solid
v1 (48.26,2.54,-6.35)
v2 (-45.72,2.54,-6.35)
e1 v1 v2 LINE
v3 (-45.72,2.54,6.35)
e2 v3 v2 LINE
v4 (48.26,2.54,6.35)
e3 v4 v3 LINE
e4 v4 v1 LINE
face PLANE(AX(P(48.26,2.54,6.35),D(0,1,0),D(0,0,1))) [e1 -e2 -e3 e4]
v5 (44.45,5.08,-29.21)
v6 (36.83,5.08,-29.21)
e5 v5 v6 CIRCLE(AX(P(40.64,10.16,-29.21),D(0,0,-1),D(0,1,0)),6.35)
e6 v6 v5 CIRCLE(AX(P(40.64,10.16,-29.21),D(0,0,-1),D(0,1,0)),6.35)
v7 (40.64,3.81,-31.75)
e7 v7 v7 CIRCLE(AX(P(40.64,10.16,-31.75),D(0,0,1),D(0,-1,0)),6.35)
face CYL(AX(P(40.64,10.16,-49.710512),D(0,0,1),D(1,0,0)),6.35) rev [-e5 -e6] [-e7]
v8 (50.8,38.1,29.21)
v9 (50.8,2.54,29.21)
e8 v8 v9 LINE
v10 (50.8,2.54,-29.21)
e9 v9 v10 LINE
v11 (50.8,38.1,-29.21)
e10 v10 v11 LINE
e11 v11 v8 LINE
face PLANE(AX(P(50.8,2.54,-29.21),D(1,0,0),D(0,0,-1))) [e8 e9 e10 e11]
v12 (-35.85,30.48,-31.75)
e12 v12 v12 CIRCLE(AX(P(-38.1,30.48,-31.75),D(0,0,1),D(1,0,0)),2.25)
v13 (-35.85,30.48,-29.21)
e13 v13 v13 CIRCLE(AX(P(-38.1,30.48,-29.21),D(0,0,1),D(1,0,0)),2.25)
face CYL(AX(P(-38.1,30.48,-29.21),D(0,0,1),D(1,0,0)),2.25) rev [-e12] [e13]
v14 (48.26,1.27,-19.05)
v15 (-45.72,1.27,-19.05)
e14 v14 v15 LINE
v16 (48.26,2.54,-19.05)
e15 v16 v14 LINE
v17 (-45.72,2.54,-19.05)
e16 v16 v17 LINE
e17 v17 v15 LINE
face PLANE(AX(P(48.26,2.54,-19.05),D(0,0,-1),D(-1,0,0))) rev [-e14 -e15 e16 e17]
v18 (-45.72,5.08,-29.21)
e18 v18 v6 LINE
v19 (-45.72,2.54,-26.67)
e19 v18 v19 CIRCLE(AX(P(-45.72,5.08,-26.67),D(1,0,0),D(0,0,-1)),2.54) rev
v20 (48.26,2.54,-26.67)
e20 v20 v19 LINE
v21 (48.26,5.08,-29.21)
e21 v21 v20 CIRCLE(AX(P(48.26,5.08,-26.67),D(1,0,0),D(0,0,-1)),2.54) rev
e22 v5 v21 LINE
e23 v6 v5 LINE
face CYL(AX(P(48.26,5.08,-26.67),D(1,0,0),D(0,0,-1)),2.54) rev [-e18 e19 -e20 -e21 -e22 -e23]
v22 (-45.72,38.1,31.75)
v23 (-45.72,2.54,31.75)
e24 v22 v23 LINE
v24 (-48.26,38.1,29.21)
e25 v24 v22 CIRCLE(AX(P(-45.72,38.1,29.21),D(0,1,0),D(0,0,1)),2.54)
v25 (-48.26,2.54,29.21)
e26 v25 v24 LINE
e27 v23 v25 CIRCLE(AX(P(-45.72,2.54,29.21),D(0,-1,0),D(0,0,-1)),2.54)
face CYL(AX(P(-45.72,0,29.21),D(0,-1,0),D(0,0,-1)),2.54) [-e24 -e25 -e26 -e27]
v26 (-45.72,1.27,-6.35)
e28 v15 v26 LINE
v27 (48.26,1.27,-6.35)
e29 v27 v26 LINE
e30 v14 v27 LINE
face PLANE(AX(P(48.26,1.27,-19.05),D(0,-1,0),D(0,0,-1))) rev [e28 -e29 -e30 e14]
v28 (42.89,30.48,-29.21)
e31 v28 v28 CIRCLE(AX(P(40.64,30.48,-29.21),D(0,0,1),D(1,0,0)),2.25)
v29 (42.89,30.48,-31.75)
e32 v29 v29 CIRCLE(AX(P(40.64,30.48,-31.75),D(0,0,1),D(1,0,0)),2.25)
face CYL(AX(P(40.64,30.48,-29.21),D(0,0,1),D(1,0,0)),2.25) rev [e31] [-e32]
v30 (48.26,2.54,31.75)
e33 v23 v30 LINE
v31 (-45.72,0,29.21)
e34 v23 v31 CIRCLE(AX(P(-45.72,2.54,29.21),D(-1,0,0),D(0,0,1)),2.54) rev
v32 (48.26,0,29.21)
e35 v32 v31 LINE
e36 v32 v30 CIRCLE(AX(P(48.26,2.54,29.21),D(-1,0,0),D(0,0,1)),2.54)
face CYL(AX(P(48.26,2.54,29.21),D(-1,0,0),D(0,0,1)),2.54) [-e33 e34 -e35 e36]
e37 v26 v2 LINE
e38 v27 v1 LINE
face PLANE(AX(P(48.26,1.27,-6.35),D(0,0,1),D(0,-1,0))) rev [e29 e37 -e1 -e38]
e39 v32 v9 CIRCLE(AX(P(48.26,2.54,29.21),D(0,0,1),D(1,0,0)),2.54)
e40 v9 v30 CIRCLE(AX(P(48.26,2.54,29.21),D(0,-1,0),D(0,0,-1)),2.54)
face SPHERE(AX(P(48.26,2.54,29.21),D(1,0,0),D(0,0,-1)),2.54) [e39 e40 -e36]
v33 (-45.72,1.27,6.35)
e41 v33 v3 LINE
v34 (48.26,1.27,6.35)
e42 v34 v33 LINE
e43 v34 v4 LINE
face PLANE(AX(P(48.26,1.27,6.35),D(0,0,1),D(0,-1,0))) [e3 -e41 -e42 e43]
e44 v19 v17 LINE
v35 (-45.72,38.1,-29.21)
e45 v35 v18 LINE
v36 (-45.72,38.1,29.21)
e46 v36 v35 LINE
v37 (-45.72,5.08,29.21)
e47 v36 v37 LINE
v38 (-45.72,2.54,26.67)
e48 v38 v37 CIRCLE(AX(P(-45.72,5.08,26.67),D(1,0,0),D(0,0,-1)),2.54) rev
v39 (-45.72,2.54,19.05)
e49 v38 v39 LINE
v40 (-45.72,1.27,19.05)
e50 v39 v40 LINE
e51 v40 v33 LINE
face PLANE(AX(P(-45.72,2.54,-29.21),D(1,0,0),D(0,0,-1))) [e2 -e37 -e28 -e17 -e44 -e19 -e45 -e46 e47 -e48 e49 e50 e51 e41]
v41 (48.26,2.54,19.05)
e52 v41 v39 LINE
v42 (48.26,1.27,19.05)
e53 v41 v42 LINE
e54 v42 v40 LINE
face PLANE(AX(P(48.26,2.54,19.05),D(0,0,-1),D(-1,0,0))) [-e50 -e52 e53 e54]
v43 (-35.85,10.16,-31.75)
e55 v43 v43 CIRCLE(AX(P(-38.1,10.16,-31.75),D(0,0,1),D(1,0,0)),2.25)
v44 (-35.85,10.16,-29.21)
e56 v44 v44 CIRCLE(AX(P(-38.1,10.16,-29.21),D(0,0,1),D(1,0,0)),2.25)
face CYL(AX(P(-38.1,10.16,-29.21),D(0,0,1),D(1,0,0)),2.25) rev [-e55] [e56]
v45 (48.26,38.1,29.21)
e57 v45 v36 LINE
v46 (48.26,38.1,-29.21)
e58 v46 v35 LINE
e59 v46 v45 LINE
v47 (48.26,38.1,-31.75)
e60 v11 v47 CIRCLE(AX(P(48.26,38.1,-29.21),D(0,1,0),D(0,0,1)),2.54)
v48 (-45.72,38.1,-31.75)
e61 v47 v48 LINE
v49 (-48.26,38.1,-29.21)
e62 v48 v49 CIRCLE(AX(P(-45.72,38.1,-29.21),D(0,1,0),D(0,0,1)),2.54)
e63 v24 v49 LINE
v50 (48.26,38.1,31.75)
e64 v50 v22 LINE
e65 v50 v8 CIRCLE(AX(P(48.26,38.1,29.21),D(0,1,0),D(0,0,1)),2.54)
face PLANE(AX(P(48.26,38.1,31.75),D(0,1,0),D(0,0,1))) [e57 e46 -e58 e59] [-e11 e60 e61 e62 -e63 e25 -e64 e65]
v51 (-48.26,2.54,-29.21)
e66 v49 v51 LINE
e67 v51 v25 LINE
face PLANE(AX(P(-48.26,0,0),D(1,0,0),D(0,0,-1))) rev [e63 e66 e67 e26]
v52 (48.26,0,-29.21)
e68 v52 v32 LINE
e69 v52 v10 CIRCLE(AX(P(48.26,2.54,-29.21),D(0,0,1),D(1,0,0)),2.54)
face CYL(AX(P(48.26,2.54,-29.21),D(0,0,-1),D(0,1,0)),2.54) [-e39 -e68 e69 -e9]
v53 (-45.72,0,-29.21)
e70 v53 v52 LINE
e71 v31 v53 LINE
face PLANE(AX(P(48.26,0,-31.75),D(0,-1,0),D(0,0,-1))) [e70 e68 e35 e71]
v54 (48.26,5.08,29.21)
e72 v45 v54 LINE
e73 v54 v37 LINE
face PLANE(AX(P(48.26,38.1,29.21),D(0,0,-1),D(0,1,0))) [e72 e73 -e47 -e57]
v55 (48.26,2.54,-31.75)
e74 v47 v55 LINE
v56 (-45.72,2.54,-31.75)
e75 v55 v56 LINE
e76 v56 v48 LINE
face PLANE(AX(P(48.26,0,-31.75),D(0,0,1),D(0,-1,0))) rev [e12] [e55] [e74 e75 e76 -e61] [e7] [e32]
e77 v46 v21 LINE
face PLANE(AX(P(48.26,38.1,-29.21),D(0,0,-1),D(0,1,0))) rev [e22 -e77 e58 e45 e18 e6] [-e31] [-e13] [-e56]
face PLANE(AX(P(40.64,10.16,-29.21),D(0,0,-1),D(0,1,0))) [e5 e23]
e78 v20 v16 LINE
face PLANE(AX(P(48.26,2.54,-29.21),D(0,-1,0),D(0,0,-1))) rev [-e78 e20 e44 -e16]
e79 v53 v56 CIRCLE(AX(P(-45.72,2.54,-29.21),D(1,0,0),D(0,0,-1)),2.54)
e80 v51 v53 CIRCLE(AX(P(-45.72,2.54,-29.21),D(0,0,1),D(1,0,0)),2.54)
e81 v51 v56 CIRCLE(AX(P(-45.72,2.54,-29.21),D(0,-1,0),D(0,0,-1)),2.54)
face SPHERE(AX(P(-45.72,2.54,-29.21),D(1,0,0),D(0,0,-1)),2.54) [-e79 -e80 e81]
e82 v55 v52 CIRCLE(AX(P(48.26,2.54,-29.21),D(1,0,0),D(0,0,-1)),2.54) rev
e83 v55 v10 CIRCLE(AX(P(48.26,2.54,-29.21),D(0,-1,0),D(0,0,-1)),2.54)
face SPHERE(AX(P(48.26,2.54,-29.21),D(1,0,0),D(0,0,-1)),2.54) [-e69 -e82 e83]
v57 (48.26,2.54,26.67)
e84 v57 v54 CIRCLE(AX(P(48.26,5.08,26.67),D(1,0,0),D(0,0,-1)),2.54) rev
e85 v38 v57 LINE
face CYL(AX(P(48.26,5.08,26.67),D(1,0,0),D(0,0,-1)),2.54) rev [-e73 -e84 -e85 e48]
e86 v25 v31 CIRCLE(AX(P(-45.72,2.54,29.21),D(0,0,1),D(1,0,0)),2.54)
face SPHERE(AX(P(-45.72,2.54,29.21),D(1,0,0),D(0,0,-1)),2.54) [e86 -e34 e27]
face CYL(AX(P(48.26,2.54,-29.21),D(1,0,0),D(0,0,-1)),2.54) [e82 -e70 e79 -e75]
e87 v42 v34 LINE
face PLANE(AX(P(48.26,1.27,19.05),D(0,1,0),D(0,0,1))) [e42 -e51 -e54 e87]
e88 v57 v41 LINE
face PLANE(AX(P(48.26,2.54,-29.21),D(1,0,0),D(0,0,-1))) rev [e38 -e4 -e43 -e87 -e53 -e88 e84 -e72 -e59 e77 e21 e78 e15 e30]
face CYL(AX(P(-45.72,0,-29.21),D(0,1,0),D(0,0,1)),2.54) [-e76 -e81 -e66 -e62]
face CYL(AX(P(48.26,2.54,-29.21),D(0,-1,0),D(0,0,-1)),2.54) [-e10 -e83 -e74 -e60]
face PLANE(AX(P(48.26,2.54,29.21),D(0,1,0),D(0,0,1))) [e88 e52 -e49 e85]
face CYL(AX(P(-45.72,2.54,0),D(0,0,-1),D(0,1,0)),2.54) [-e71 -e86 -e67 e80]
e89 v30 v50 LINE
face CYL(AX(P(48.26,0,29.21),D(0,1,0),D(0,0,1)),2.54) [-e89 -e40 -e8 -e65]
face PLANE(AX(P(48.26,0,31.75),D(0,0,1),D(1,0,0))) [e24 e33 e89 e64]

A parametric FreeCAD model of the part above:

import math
import FreeCAD as App
import Part
import Sketcher

V = App.Vector
Q = App.Units.Quantity


def edges_at(feature, points):
    """Names of the edges that pass closest to the given points."""
    edges = feature.Shape.Edges
    near = lambda p: min(range(len(edges)), key=lambda i: edges[i].distToShape(Part.Vertex(*p))[0])
    return sorted({f"Edge{near(p) + 1}" for p in points})

doc = App.newDocument("Part")
body = doc.addObject("PartDesign::Body", "Body")

sketch1 = doc.addObject("Sketcher::SketchObject", "Sketch")
body.addObject(sketch1)
sketch1.AttachmentSupport = (doc.YZ_Plane, [""])
sketch1.MapMode = "FlatFace"
sketch1.addGeometry([
    Part.LineSegment(V(0, 31.75, 0), V(0, -31.75, 0)),
    Part.LineSegment(V(0, -31.75, 0), V(38.1, -31.75, 0)),
    Part.LineSegment(V(38.1, -31.75, 0), V(38.1, -29.21, 0)),
    Part.LineSegment(V(38.1, -29.21, 0), V(2.54, -29.21, 0)),
    Part.LineSegment(V(2.54, -29.21, 0), V(2.54, -19.05, 0)),
    Part.LineSegment(V(2.54, -19.05, 0), V(1.27, -19.05, 0)),
    Part.LineSegment(V(1.27, -19.05, 0), V(1.27, -6.35, 0)),
    Part.LineSegment(V(1.27, -6.35, 0), V(2.54, -6.35, 0)),
    Part.LineSegment(V(2.54, -6.35, 0), V(2.54, 6.35, 0)),
    Part.LineSegment(V(2.54, 6.35, 0), V(1.27, 6.35, 0)),
    Part.LineSegment(V(1.27, 6.35, 0), V(1.27, 19.05, 0)),
    Part.LineSegment(V(1.27, 19.05, 0), V(2.54, 19.05, 0)),
    Part.LineSegment(V(2.54, 19.05, 0), V(2.54, 29.21, 0)),
    Part.LineSegment(V(2.54, 29.21, 0), V(38.1, 29.21, 0)),
    Part.LineSegment(V(38.1, 29.21, 0), V(38.1, 31.75, 0)),
    Part.LineSegment(V(38.1, 31.75, 0), V(0, 31.75, 0)),
], False)
sketch1.addConstraint([
    Sketcher.Constraint("Coincident", 0, 2, 1, 1),
    Sketcher.Constraint("Coincident", 1, 2, 2, 1),
    Sketcher.Constraint("Coincident", 2, 2, 3, 1),
    Sketcher.Constraint("Coincident", 3, 2, 4, 1),
    Sketcher.Constraint("Coincident", 4, 2, 5, 1),
    Sketcher.Constraint("Coincident", 5, 2, 6, 1),
    Sketcher.Constraint("Coincident", 6, 2, 7, 1),
    Sketcher.Constraint("Coincident", 7, 2, 8, 1),
    Sketcher.Constraint("Coincident", 8, 2, 9, 1),
    Sketcher.Constraint("Coincident", 9, 2, 10, 1),
    Sketcher.Constraint("Coincident", 10, 2, 11, 1),
    Sketcher.Constraint("Coincident", 11, 2, 12, 1),
    Sketcher.Constraint("Coincident", 12, 2, 13, 1),
    Sketcher.Constraint("Coincident", 13, 2, 14, 1),
    Sketcher.Constraint("Coincident", 14, 2, 15, 1),
    Sketcher.Constraint("Coincident", 15, 2, 0, 1),
    Sketcher.Constraint("Vertical", 0),
    Sketcher.Constraint("Horizontal", 1),
    Sketcher.Constraint("Vertical", 2),
    Sketcher.Constraint("Horizontal", 3),
    Sketcher.Constraint("Vertical", 4),
    Sketcher.Constraint("Horizontal", 5),
    Sketcher.Constraint("Vertical", 6),
    Sketcher.Constraint("Horizontal", 7),
    Sketcher.Constraint("Vertical", 8),
    Sketcher.Constraint("Horizontal", 9),
    Sketcher.Constraint("Vertical", 10),
    Sketcher.Constraint("Horizontal", 11),
    Sketcher.Constraint("Vertical", 12),
    Sketcher.Constraint("Horizontal", 13),
    Sketcher.Constraint("Vertical", 14),
    Sketcher.Constraint("Horizontal", 15),
    Sketcher.Constraint("Symmetric", 0, 2, 15, 2, -1, 1),
    Sketcher.Constraint("Symmetric", 6, 2, 9, 2, -1),
    Sketcher.Constraint("Symmetric", 4, 2, 11, 2, -1),
    Sketcher.Constraint("Symmetric", 2, 2, 13, 2, -1),
    Sketcher.Constraint("Vertical", 4, 2, 7, 2),
    Sketcher.Constraint("Equal", 6, 8),
    Sketcher.Constraint("DistanceX", 1, 1, 1, 2, Q("1.5 in")),
    Sketcher.Constraint("DistanceX", 3, 2, 3, 1, Q("1.4 in")),
    Sketcher.Constraint("DistanceY", 0, 2, 0, 1, Q("2.5 in")),
    Sketcher.Constraint("DistanceY", 2, 1, 2, 2, Q("0.1 in")),
    Sketcher.Constraint("DistanceY", 4, 1, 4, 2, Q("0.4 in")),
    Sketcher.Constraint("DistanceX", 5, 2, 5, 1, Q("0.05 in")),
])
pad1 = doc.addObject("PartDesign::Pad", "Pad")
body.addObject(pad1)
pad1.Profile = sketch1
pad1.Length = Q("3.8 in")
pad1.Midplane = True
doc.recompute()

fillet = doc.addObject("PartDesign::Fillet", "Fillet")
body.addObject(fillet)
fillet.Base = (pad1, edges_at(pad1, [
    (0, 0, 31.75),
    (0, 0, -31.75),
    (0, 2.54, -29.21),
    (0, 2.54, 29.21),
]))
fillet.Radius = Q("0.1 in")

sketch2 = doc.addObject("Sketcher::SketchObject", "Sketch001")
body.addObject(sketch2)
sketch2.AttachmentSupport = (doc.YZ_Plane, [""])
sketch2.MapMode = "FlatFace"
sketch2.AttachmentOffset = App.Placement(V(0, 0, -1.9 * 25.4), App.Rotation())
sketch2.addGeometry([
    Part.LineSegment(V(38.1, 31.75, 0), V(2.54, 31.75, 0)),
    Part.ArcOfCircle(Part.Circle(V(2.54, 29.21, 0), V(0, 0, 1), 2.54), math.radians(90), math.radians(180)),
    Part.LineSegment(V(0, 29.21, 0), V(0, -29.21, 0)),
    Part.ArcOfCircle(Part.Circle(V(2.54, -29.21, 0), V(0, 0, 1), 2.54), math.radians(180), math.radians(270)),
    Part.LineSegment(V(2.54, -31.75, 0), V(38.1, -31.75, 0)),
    Part.LineSegment(V(38.1, -31.75, 0), V(38.1, 31.75, 0)),
], False)
sketch2.addConstraint([
    Sketcher.Constraint("Tangent", 0, 2, 1, 1),
    Sketcher.Constraint("Tangent", 1, 2, 2, 1),
    Sketcher.Constraint("Tangent", 2, 2, 3, 1),
    Sketcher.Constraint("Tangent", 3, 2, 4, 1),
    Sketcher.Constraint("Coincident", 4, 2, 5, 1),
    Sketcher.Constraint("Coincident", 5, 2, 0, 1),
    Sketcher.Constraint("Horizontal", 0),
    Sketcher.Constraint("Vertical", 2),
    Sketcher.Constraint("Horizontal", 4),
    Sketcher.Constraint("Vertical", 5),
    Sketcher.Constraint("Equal", 1, 3),
    Sketcher.Constraint("Symmetric", 1, 2, 2, 2, -1, 1),
    Sketcher.Constraint("Radius", 1, Q("0.1 in")),
    Sketcher.Constraint("DistanceX", 0, 2, 0, 1, Q("1.4 in")),
    Sketcher.Constraint("DistanceY", 2, 2, 2, 1, Q("2.3 in")),
])
pad2 = doc.addObject("PartDesign::Pad", "Pad001")
body.addObject(pad2)
pad2.Profile = sketch2
pad2.Length = Q("0.1 in")

sketch3 = doc.addObject("Sketcher::SketchObject", "Sketch002")
body.addObject(sketch3)
sketch3.AttachmentSupport = (doc.YZ_Plane, [""])
sketch3.MapMode = "FlatFace"
sketch3.AttachmentOffset = App.Placement(V(0, 0, 1.9 * 25.4), App.Rotation())
sketch3.addGeometry([
    Part.LineSegment(V(38.1, -31.75, 0), V(38.1, 31.75, 0)),
    Part.LineSegment(V(38.1, 31.75, 0), V(2.54, 31.75, 0)),
    Part.ArcOfCircle(Part.Circle(V(2.54, 29.21, 0), V(0, 0, 1), 2.54), math.radians(90), math.radians(180)),
    Part.LineSegment(V(0, 29.21, 0), V(0, -29.21, 0)),
    Part.ArcOfCircle(Part.Circle(V(2.54, -29.21, 0), V(0, 0, 1), 2.54), math.radians(180), math.radians(270)),
    Part.LineSegment(V(2.54, -31.75, 0), V(38.1, -31.75, 0)),
], False)
sketch3.addConstraint([
    Sketcher.Constraint("Coincident", 0, 2, 1, 1),
    Sketcher.Constraint("Tangent", 1, 2, 2, 1),
    Sketcher.Constraint("Tangent", 2, 2, 3, 1),
    Sketcher.Constraint("Tangent", 3, 2, 4, 1),
    Sketcher.Constraint("Tangent", 4, 2, 5, 1),
    Sketcher.Constraint("Coincident", 5, 2, 0, 1),
    Sketcher.Constraint("Vertical", 0),
    Sketcher.Constraint("Horizontal", 1),
    Sketcher.Constraint("Vertical", 3),
    Sketcher.Constraint("Horizontal", 5),
    Sketcher.Constraint("Equal", 2, 4),
    Sketcher.Constraint("Symmetric", 2, 2, 3, 2, -1, 1),
    Sketcher.Constraint("Radius", 2, Q("0.1 in")),
    Sketcher.Constraint("DistanceX", 1, 2, 1, 1, Q("1.4 in")),
    Sketcher.Constraint("DistanceY", 0, 1, 0, 2, Q("2.5 in")),
])
pad3 = doc.addObject("PartDesign::Pad", "Pad002")
body.addObject(pad3)
pad3.Profile = sketch3
pad3.Length = Q("0.1 in")

sketch4 = doc.addObject("Sketcher::SketchObject", "Sketch003")
body.addObject(sketch4)
sketch4.AttachmentSupport = (doc.XY_Plane, [""])
sketch4.MapMode = "FlatFace"
sketch4.AttachmentOffset = App.Placement(V(0, 0, -1.15 * 25.4), App.Rotation())
sketch4.addGeometry(Part.Circle(V(40.64, 10.16, 0), V(0, 0, 1), 6.35), False)
sketch4.addConstraint([
    Sketcher.Constraint("Diameter", 0, Q("0.5 in")),
    Sketcher.Constraint("DistanceX", -1, 1, 0, 3, Q("1.6 in")),
    Sketcher.Constraint("DistanceY", -1, 1, 0, 3, Q("0.4 in")),
])
pocket1 = doc.addObject("PartDesign::Pocket", "Pocket")
body.addObject(pocket1)
pocket1.Profile = sketch4
pocket1.Length = Q("0.1 in")
doc.recompute()

fillet2 = doc.addObject("PartDesign::Fillet", "Fillet001")
body.addObject(fillet2)
fillet2.Base = (pocket1, edges_at(pocket1, [
    (50.8, 20.32, 31.75),
    (50.8, 0.744, 31.006),
    (50.8, 0, 0),
    (50.8, 0.744, -31.006),
    (50.8, 20.32, -31.75),
    (-48.26, 20.32, -31.75),
    (-48.26, 0, 0),
    (-48.26, 20.32, 31.75),
    (-48.26, 0.744, 31.006),
    (-48.26, 0.744, -31.006),
]))
fillet2.Radius = Q("0.1 in")

sketch5 = doc.addObject("Sketcher::SketchObject", "Sketch004")
body.addObject(sketch5)
sketch5.AttachmentSupport = (doc.XY_Plane, [""])
sketch5.MapMode = "FlatFace"
sketch5.AttachmentOffset = App.Placement(V(0, 0, -1.15 * 25.4), App.Rotation())
sketch5.addGeometry([
    Part.Circle(V(-38.1, 30.48, 0), V(0, 0, 1), 2.25),
    Part.Circle(V(40.64, 30.48, 0), V(0, 0, 1), 2.25),
    Part.Circle(V(-38.1, 10.16, 0), V(0, 0, 1), 2.25),
], False)
sketch5.addConstraint([
    Sketcher.Constraint("Equal", 0, 1),
    Sketcher.Constraint("Equal", 1, 2),
    Sketcher.Constraint("Horizontal", 0, 3, 1, 3),
    Sketcher.Constraint("Vertical", 0, 3, 2, 3),
    Sketcher.Constraint("DistanceX", 0, 3, -1, 1, Q("1.5 in")),
    Sketcher.Constraint("DistanceY", -1, 1, 0, 3, Q("1.2 in")),
    Sketcher.Constraint("DistanceX", -1, 1, 1, 3, Q("1.6 in")),
    Sketcher.Constraint("DistanceY", -1, 1, 2, 3, Q("0.4 in")),
    Sketcher.Constraint("Diameter", 0, Q("4.5 mm")),
])
doc.recompute()
hole = doc.addObject("PartDesign::Hole", "Hole")
body.addObject(hole)
hole.Profile = sketch5
hole.ThreadType = "None"
hole.Diameter = 4.5
hole.DepthType = "Dimension"
hole.Depth = Q("0.1 in")
hole.DrillPoint = "Flat"

doc.recompute()
